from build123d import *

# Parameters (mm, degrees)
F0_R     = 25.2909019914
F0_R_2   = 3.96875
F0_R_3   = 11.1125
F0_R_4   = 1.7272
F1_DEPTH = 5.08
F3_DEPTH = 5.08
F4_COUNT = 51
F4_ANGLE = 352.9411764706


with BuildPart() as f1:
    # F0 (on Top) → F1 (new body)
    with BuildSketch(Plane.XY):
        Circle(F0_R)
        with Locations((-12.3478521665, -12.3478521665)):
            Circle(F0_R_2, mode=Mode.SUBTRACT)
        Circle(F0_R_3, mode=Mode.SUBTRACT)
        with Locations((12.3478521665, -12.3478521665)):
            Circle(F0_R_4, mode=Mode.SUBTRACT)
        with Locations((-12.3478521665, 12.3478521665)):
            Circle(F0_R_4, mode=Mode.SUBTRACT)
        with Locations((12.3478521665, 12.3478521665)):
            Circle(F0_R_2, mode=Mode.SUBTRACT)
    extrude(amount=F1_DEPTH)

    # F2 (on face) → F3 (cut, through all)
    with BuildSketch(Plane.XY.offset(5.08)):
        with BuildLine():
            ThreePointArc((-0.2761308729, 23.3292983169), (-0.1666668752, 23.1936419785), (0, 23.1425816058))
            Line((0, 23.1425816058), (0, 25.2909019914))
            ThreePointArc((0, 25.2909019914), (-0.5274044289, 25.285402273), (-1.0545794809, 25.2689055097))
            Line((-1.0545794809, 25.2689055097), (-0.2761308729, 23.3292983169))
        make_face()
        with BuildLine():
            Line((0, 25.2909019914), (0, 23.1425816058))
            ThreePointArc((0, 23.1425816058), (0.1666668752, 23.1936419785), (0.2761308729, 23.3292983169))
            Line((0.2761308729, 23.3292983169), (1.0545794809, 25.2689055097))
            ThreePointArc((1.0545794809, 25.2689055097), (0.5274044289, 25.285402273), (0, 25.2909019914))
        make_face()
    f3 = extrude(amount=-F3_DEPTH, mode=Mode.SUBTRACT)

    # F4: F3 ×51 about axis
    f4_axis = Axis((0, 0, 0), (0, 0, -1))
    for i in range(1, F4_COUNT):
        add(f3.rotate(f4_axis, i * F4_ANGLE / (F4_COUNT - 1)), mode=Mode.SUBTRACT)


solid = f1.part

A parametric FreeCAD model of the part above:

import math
import FreeCAD as App
import Part
import Sketcher
Q = App.Units.Quantity

doc = App.newDocument("Part")
body = doc.addObject("PartDesign::Body", "Body")

# Sketch on XY plane
sketch1 = body.newObject("Sketcher::SketchObject", "Sketch")
sketch1.AttachmentSupport = (doc.getObject("XY_Plane"), [""])
sketch1.MapMode = "FlatFace"
sketch1.addGeometry([
    Part.Circle(App.Vector(0, 0, 0), App.Vector(0, 0, 1), 25.3),  # 0
    Part.Circle(App.Vector(-12.3, -12.3, 0), App.Vector(0, 0, 1), 4),  # 1
    Part.Circle(App.Vector(0, 0, 0), App.Vector(0, 0, 1), 11.1),  # 2
    Part.Circle(App.Vector(12.3, -12.3, 0), App.Vector(0, 0, 1), 1.7),  # 3
    Part.Circle(App.Vector(-12.3, 12.3, 0), App.Vector(0, 0, 1), 1.7),  # 4
    Part.Circle(App.Vector(12.3, 12.3, 0), App.Vector(0, 0, 1), 4),  # 5
], False)
sketch1.addConstraint([
    Sketcher.Constraint("Coincident", 0, 3, -1, 1),
    Sketcher.Constraint("Coincident", 2, 3, -1, 1),
    Sketcher.Constraint("Equal", 3, 4),
    Sketcher.Constraint("Equal", 1, 5),
    Sketcher.Constraint("Symmetric", 3, 3, 4, 3, -1, 1),
    Sketcher.Constraint("Symmetric", 1, 3, 5, 3, -1, 1),
    Sketcher.Constraint("Symmetric", 1, 3, 3, 3, -2),
    Sketcher.Constraint("Diameter", 1, Q("0.3125 in")),
    Sketcher.Constraint("Diameter", 2, Q("0.875 in")),
    Sketcher.Constraint("Diameter", 3, Q("0.136 in")),
    Sketcher.Constraint("Diameter", 0, 50.581804),
    Sketcher.Constraint("DistanceX", 1, 3, -1, 1, 12.347852),
    Sketcher.Constraint("DistanceY", 1, 3, -1, 1, 12.347852),
])
pad1 = body.newObject("PartDesign::Pad", "Pad")
pad1.Profile = sketch1
pad1.Length = Q("0.2 in")

# Sketch on XY plane
sketch2 = body.newObject("Sketcher::SketchObject", "Sketch001")
sketch2.AttachmentSupport = (doc.getObject("XY_Plane"), [""])
sketch2.MapMode = "FlatFace"
sketch2.AttachmentOffset = App.Placement(App.Vector(0, 0, 0.2 * 25.4), App.Rotation())
sketch2.addGeometry([
    Part.ArcOfCircle(Part.Circle(App.Vector(0, 23.44, 0), App.Vector(0, 0, 1), 0.3), math.radians(-158), math.radians(-90)),  # 0
    Part.ArcOfCircle(Part.Circle(App.Vector(0, 23.44, 0), App.Vector(0, 0, 1), 0.3), math.radians(-90), math.radians(-22)),  # 1
    Part.LineSegment(App.Vector(0.28, 23.33, 0), App.Vector(1.05, 25.27, 0)),  # 2
    Part.ArcOfCircle(Part.Circle(App.Vector(0, 0, 0), App.Vector(0, 0, 1), 25.29), math.radians(87.61), math.radians(90)),  # 3
    Part.ArcOfCircle(Part.Circle(App.Vector(0, 0, 0), App.Vector(0, 0, 1), 25.29), math.radians(90), math.radians(92.39)),  # 4
    Part.LineSegment(App.Vector(-1.05, 25.27, 0), App.Vector(-0.28, 23.33, 0)),  # 5
], False)
sketch2.addConstraint([
    Sketcher.Constraint("Tangent", 0, 2, 1, 1),
    Sketcher.Constraint("Tangent", 1, 2, 2, 1),
    Sketcher.Constraint("Coincident", 2, 2, 3, 1),
    Sketcher.Constraint("Tangent", 3, 2, 4, 1),
    Sketcher.Constraint("Coincident", 4, 2, 5, 1),
    Sketcher.Constraint("Tangent", 5, 2, 0, 1),
    Sketcher.Constraint("Coincident", 3, 3, -1, 1),
    Sketcher.Constraint("Equal", 0, 1),
    Sketcher.Constraint("Equal", 3, 4),
    Sketcher.Constraint("Symmetric", 1, 2, 5, 2, -2),
    Sketcher.Constraint("PointOnObject", 0, 2, -2),
    Sketcher.Constraint("PointOnObject", 3, 2, -2),
    Sketcher.Constraint("Radius", 3, 25.290902),
    Sketcher.Constraint("Radius", 0, 0.29754),
    Sketcher.Constraint("DistanceY", -1, 1, 1, 2, 23.329298),
    Sketcher.Constraint("Distance", 2, 2.08999),
])
pocket1 = body.newObject("PartDesign::Pocket", "Pocket")
pocket1.Profile = sketch2
pocket1.Type = "ThroughAll"
doc.recompute()

polarpattern = body.newObject("PartDesign::PolarPattern", "PolarPattern")
polarpattern.Originals = [pocket1]
polarpattern.Axis = (doc.getObject("Z_Axis"), [""])
polarpattern.Angle = 360
polarpattern.Occurrences = 51
body.Tip = polarpattern

doc.recompute()
